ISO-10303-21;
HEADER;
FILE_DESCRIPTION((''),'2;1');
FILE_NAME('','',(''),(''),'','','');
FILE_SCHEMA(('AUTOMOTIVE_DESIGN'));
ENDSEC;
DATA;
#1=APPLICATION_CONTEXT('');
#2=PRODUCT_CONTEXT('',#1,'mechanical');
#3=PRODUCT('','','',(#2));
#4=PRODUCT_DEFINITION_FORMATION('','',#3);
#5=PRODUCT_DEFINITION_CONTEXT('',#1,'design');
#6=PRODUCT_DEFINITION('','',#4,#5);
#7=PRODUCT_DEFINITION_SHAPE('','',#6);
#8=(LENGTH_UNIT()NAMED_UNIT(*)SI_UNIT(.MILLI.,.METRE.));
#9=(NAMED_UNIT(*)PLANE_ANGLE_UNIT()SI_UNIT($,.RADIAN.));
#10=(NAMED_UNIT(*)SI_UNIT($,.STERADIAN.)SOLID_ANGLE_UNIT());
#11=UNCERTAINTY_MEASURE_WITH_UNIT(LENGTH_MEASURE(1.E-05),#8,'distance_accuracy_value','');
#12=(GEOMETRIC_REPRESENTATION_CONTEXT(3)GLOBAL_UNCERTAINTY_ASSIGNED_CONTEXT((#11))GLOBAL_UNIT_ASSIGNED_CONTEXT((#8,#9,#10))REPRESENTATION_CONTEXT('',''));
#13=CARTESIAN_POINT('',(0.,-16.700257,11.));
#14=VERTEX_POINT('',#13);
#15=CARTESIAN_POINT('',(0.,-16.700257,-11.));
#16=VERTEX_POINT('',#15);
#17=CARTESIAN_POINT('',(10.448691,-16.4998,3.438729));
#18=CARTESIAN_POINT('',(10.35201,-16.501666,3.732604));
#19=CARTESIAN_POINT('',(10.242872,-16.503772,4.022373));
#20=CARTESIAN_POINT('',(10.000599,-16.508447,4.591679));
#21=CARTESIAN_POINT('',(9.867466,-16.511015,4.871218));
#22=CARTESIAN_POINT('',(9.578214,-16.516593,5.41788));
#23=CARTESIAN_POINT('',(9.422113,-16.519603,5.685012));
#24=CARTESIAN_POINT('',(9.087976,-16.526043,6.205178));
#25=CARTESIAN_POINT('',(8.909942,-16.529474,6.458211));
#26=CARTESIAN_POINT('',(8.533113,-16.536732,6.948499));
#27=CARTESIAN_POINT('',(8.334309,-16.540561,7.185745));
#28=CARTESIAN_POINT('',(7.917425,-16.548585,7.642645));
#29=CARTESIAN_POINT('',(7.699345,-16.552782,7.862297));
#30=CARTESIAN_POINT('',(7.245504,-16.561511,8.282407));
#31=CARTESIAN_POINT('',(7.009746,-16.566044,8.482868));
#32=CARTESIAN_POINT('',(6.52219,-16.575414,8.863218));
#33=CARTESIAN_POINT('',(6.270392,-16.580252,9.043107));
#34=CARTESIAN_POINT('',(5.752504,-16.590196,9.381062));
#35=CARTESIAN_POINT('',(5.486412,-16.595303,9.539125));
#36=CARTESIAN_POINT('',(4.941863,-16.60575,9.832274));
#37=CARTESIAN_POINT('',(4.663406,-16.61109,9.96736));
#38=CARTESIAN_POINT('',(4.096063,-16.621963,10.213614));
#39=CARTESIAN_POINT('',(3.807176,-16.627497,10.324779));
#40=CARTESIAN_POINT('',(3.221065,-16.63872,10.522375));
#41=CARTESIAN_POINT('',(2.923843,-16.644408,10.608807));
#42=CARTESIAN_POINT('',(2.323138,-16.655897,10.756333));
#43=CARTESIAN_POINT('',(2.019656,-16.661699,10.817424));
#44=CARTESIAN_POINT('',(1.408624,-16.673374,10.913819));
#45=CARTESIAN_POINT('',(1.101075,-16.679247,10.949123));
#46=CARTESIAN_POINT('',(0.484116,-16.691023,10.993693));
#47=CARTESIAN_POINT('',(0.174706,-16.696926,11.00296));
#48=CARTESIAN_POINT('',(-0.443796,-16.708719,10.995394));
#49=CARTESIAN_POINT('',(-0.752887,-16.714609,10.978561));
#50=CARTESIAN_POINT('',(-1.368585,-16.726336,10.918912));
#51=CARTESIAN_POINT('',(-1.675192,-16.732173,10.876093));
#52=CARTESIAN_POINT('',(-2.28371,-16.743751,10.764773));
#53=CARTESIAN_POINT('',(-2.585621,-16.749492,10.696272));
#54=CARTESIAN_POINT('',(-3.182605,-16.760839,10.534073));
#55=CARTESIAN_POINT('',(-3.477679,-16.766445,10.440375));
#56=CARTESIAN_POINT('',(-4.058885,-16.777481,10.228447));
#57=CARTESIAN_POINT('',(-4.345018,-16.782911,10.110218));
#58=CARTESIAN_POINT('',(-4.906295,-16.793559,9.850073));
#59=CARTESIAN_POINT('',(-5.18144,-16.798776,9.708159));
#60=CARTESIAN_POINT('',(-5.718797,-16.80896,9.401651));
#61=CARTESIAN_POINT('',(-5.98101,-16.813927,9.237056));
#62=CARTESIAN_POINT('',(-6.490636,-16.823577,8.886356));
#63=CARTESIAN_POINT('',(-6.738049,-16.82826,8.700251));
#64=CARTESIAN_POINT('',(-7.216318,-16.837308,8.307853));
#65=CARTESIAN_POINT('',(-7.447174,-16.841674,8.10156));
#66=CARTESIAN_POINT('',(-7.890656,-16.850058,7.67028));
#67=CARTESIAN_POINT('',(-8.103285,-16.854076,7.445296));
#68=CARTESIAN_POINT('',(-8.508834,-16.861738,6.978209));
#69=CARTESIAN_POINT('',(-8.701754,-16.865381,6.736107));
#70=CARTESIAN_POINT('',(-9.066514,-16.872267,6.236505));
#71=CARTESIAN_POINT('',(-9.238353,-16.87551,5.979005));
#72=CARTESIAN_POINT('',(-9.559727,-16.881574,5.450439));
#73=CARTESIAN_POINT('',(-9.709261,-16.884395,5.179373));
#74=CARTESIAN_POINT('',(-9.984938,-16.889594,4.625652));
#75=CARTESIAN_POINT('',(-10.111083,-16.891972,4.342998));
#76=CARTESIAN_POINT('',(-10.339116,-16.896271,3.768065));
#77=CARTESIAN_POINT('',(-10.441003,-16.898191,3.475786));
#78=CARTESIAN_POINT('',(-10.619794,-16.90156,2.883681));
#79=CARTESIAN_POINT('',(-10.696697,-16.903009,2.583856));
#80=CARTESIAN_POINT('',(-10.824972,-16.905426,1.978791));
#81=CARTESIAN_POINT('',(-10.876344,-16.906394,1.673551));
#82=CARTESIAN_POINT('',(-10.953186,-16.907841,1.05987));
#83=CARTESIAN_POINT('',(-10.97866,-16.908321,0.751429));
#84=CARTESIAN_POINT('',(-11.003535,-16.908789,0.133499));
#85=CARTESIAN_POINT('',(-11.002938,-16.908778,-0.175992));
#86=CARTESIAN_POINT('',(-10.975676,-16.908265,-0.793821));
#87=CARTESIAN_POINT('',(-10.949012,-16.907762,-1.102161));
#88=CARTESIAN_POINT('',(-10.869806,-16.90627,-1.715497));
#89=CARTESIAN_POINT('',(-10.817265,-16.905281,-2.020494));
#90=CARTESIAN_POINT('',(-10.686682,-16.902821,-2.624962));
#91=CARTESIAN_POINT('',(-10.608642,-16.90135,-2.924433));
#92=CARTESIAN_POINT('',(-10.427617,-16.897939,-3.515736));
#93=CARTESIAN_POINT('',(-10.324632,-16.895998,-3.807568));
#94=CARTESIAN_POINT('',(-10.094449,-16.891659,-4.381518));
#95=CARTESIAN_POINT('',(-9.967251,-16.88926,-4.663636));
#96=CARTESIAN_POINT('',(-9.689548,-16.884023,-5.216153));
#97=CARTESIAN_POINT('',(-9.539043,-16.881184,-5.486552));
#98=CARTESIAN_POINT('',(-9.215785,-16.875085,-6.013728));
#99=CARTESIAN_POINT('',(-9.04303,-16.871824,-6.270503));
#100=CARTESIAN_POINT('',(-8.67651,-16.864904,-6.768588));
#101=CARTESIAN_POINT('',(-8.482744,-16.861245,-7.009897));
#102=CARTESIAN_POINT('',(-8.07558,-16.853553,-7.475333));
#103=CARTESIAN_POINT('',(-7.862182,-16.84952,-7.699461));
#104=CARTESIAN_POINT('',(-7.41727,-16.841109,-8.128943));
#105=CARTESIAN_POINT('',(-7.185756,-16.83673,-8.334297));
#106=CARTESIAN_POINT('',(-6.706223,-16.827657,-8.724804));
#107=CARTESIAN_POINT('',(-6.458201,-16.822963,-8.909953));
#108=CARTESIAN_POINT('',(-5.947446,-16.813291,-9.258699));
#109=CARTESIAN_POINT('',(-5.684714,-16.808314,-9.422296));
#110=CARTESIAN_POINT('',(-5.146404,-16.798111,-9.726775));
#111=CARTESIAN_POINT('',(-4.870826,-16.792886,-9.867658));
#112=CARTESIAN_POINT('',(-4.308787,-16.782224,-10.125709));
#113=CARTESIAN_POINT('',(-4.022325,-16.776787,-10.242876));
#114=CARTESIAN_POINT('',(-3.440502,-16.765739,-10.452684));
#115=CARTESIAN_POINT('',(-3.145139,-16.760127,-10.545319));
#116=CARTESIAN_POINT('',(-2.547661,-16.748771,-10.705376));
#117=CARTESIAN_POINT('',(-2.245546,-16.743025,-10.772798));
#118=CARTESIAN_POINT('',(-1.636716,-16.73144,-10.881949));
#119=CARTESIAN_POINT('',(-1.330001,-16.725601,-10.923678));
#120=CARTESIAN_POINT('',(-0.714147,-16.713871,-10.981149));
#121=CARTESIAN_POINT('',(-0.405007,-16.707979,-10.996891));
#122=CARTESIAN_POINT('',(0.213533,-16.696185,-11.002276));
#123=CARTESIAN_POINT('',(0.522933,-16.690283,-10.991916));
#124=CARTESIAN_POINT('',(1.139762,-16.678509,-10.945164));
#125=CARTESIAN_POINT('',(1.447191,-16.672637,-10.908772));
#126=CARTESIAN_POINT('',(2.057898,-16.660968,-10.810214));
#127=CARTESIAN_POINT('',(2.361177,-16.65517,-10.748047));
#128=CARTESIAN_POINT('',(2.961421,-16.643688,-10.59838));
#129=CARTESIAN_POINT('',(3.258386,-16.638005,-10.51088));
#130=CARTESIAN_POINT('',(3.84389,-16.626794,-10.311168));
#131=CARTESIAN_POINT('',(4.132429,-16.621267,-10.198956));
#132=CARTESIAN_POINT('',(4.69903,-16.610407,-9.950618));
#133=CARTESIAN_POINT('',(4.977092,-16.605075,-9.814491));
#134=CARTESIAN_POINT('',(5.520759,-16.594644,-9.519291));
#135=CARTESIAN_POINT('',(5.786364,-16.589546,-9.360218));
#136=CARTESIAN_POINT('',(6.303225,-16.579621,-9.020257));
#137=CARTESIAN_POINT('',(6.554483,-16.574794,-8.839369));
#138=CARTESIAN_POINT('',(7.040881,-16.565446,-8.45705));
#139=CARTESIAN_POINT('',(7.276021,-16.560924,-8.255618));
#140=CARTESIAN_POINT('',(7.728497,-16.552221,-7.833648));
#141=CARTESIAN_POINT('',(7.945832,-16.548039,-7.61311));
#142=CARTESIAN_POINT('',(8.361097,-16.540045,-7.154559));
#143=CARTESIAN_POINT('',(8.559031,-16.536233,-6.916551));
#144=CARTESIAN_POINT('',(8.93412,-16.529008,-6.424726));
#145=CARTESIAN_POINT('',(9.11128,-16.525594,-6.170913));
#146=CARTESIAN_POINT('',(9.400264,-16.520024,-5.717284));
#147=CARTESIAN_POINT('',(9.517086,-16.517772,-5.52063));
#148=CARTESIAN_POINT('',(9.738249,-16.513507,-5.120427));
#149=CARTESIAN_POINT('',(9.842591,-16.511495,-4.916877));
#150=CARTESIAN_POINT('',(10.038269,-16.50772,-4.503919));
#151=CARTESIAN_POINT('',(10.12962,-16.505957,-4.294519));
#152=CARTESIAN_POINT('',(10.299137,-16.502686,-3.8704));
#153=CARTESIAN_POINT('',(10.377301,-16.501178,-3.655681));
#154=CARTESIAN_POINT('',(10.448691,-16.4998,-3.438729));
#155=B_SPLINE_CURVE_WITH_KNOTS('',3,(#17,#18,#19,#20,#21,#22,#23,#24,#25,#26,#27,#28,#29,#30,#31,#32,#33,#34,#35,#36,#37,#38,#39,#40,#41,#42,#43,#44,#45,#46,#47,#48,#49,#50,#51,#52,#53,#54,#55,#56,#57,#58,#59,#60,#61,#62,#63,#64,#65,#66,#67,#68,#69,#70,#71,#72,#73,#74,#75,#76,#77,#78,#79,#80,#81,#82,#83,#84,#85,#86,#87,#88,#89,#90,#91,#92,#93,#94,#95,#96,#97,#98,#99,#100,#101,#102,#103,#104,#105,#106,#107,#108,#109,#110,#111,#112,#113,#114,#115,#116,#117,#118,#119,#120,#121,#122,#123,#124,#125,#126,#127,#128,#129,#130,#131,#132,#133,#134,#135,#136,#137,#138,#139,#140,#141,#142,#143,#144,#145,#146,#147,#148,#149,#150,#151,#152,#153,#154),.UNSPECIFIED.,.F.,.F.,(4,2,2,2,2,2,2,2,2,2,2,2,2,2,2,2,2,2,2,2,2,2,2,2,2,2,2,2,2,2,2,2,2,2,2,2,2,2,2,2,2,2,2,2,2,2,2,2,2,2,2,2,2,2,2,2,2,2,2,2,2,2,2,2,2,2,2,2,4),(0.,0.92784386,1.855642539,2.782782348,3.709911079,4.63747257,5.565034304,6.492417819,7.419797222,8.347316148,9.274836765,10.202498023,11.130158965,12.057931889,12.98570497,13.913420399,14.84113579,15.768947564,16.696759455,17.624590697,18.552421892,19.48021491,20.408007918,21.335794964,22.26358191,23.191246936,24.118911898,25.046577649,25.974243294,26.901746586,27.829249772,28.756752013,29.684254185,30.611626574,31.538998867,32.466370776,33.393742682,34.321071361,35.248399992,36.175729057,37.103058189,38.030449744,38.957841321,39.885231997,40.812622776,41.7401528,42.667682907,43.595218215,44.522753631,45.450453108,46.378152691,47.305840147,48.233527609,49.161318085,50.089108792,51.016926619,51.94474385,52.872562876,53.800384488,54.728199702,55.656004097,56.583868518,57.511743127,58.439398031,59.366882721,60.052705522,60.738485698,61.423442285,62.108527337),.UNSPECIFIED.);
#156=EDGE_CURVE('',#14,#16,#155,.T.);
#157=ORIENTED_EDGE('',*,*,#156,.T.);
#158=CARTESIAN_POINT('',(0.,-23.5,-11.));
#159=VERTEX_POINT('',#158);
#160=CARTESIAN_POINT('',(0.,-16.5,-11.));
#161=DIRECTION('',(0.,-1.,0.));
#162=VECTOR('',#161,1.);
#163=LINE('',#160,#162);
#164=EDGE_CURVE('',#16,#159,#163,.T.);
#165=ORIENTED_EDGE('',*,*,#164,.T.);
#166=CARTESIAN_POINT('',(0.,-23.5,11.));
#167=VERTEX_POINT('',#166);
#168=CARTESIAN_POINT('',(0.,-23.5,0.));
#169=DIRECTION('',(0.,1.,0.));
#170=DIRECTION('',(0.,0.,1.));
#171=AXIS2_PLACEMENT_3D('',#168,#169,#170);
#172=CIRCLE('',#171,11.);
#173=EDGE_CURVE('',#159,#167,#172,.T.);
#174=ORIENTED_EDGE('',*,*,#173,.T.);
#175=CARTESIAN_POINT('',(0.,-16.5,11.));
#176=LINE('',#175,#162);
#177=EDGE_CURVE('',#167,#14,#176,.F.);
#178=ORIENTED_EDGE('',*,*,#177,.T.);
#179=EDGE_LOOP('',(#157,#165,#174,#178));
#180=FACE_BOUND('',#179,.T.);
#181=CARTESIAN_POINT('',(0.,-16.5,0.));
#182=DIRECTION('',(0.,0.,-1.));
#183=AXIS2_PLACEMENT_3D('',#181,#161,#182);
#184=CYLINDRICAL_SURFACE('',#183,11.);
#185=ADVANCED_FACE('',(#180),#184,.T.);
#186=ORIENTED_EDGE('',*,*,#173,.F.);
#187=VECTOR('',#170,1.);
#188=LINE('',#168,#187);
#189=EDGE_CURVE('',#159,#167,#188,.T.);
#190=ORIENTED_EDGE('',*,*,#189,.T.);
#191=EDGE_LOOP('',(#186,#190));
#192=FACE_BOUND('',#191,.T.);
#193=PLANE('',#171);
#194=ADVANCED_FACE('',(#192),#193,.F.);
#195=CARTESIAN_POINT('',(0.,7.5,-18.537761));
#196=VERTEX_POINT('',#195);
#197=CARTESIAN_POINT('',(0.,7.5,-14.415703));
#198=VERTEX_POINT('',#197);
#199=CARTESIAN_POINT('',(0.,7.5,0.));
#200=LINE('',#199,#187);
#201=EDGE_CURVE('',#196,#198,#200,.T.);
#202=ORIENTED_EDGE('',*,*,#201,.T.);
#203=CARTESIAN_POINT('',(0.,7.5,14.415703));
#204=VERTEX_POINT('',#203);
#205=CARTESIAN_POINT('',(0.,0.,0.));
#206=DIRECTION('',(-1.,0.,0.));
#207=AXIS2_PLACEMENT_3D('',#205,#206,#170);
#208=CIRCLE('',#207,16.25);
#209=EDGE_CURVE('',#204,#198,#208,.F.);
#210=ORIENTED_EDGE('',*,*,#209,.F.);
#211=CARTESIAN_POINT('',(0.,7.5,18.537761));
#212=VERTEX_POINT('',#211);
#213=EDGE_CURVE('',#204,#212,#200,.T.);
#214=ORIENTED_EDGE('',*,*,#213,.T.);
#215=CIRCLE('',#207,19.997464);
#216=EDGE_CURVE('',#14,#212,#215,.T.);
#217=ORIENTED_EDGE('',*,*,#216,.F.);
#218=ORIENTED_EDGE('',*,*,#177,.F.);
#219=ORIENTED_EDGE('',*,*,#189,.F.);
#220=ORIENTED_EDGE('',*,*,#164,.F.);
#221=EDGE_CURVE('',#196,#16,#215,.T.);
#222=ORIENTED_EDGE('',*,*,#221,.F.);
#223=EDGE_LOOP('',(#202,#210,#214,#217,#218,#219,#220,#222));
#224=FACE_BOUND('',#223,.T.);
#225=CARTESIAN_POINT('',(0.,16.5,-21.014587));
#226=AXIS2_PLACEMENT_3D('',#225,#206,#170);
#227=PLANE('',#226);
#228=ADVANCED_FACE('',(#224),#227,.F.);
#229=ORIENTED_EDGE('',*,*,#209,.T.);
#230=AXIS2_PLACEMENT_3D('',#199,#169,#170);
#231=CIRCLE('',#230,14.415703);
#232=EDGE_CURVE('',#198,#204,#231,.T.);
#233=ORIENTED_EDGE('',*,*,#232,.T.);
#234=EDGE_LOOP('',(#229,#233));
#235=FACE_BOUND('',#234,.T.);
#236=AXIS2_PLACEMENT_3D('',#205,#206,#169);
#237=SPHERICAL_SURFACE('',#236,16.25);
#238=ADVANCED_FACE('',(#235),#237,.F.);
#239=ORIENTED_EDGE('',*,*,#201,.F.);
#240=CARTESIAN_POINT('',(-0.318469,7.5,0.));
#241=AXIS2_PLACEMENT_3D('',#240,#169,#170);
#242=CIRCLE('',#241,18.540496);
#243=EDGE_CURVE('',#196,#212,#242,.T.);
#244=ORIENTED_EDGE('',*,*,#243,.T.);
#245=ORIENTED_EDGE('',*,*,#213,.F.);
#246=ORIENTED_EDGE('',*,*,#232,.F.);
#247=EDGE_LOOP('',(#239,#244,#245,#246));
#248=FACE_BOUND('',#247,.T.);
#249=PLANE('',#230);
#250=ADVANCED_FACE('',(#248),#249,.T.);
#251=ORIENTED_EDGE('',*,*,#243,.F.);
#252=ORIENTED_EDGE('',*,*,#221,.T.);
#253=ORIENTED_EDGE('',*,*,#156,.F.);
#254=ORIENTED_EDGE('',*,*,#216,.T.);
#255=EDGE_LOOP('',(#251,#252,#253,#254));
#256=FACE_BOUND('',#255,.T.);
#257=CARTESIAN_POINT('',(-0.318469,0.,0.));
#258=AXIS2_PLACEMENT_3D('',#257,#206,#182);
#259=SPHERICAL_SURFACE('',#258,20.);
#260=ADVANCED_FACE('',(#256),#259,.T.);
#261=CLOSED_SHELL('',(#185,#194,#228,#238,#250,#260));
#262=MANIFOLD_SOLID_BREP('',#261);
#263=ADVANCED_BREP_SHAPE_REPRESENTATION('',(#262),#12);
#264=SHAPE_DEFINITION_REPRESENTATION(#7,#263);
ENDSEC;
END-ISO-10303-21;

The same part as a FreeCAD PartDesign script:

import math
import FreeCAD as App
import Part
import Sketcher


def add_polygon(sketch, points):
    """Adds a closed chain of lines whose ends are joined by coincident constraints."""
    first, n = sketch.GeometryCount, len(points)
    for a, b in zip(points, points[1:] + points[:1]):
        sketch.addGeometry(Part.LineSegment(App.Vector(*a, 0), App.Vector(*b, 0)), False)
    for i in range(n):
        sketch.addConstraint(Sketcher.Constraint("Coincident", first + i, 2, first + (i + 1) % n, 1))

doc = App.newDocument("Part")
body = doc.addObject("PartDesign::Body", "Body")

# Sketch on XZ plane
sketch1 = body.newObject("Sketcher::SketchObject", "Sketch")
sketch1.AttachmentSupport = (doc.getObject("XZ_Plane"), [""])
sketch1.MapMode = "FlatFace"
sketch1.addGeometry(Part.LineSegment(App.Vector(-20, 0, 0), App.Vector(20, 0, 0)), False)
sketch1.addGeometry(Part.ArcOfCircle(Part.Circle(App.Vector(0, 0, 0), App.Vector(0, 0, 1), 20), math.radians(180), math.radians(360)), False)
sketch1.addConstraint(Sketcher.Constraint("Coincident", 0, 1, 1, 1))
sketch1.addConstraint(Sketcher.Constraint("Coincident", 1, 2, 0, 2))
sketch1.addConstraint(Sketcher.Constraint("Horizontal", 0))
sketch1.addConstraint(Sketcher.Constraint("PointOnObject", 1, 3, -1))
sketch1.addConstraint(Sketcher.Constraint("PointOnObject", 0, 1, -1))
sketch1.addConstraint(Sketcher.Constraint("Radius", 1, 20.0))
sketch1.addConstraint(Sketcher.Constraint("DistanceX", 1, 3, -1, 1, 0.318469))
revolution = body.newObject("PartDesign::Revolution", "Revolution")
revolution.Profile = sketch1
revolution.ReferenceAxis = (sketch1, ["H_Axis"])
revolution.Angle = 360

# Sketch on XZ plane
sketch2 = body.newObject("Sketcher::SketchObject", "Sketch001")
sketch2.AttachmentSupport = (doc.getObject("XZ_Plane"), [""])
sketch2.MapMode = "FlatFace"
sketch2.AttachmentOffset = App.Placement(App.Vector(0, 0, -7.5), App.Rotation())
add_polygon(sketch2, [(-21, -21), (-21, 21), (21, 21), (21, -21)])  # lines 0-3
sketch2.addConstraint(Sketcher.Constraint("Vertical", 0))
sketch2.addConstraint(Sketcher.Constraint("Horizontal", 1))
sketch2.addConstraint(Sketcher.Constraint("Vertical", 2))
sketch2.addConstraint(Sketcher.Constraint("Horizontal", 3))
sketch2.addConstraint(Sketcher.Constraint("Symmetric", 0, 2, 2, 2, -1, 1))
sketch2.addConstraint(Sketcher.Constraint("Equal", 3, 0))
sketch2.addConstraint(Sketcher.Constraint("DistanceX", 1, 1, 1, 2, 42.0))
pocket1 = body.newObject("PartDesign::Pocket", "Pocket")
pocket1.Profile = sketch2
pocket1.Length = 20

# Sketch on XY plane
sketch3 = body.newObject("Sketcher::SketchObject", "Sketch002")
sketch3.AttachmentSupport = (doc.getObject("XY_Plane"), [""])
sketch3.MapMode = "FlatFace"
sketch3.addGeometry(Part.LineSegment(App.Vector(16, 0, 0), App.Vector(-16, 0, 0)), False)
sketch3.addGeometry(Part.ArcOfCircle(Part.Circle(App.Vector(0, 0, 0), App.Vector(0, 0, 1), 16), math.radians(180), math.radians(360)), False)
sketch3.addConstraint(Sketcher.Constraint("Coincident", 0, 1, 1, 2))
sketch3.addConstraint(Sketcher.Constraint("Coincident", 1, 1, 0, 2))
sketch3.addConstraint(Sketcher.Constraint("Horizontal", 0))
sketch3.addConstraint(Sketcher.Constraint("Coincident", 1, 3, -1, 1))
sketch3.addConstraint(Sketcher.Constraint("PointOnObject", 0, 1, -1))
sketch3.addConstraint(Sketcher.Constraint("Radius", 1, 16.25))
groove = body.newObject("PartDesign::Groove", "Groove")
groove.Profile = sketch3
groove.ReferenceAxis = (sketch3, ["H_Axis"])
groove.Angle = 360

# Sketch on XZ plane
sketch4 = body.newObject("Sketcher::SketchObject", "Sketch003")
sketch4.AttachmentSupport = (doc.getObject("XZ_Plane"), [""])
sketch4.MapMode = "FlatFace"
sketch4.AttachmentOffset = App.Placement(App.Vector(0, 0, 20), App.Rotation())
sketch4.addGeometry(Part.Circle(App.Vector(0, 0, 0), App.Vector(0, 0, 1), 11), False)
sketch4.addConstraint(Sketcher.Constraint("Coincident", 0, 3, -1, 1))
sketch4.addConstraint(Sketcher.Constraint("Diameter", 0, 22.0))
pad1 = body.newObject("PartDesign::Pad", "Pad")
pad1.Profile = sketch4
pad1.Length = 7
pad1.Midplane = True

# Sketch on XZ plane
sketch5 = body.newObject("Sketcher::SketchObject", "Sketch004")
sketch5.AttachmentSupport = (doc.getObject("XZ_Plane"), [""])
sketch5.MapMode = "FlatFace"
sketch5.AttachmentOffset = App.Placement(App.Vector(0, 0, 23.5), App.Rotation())
add_polygon(sketch5, [(0, 21), (0, -21), (38, -21), (38, 21)])  # lines 0-3
sketch5.addConstraint(Sketcher.Constraint("Vertical", 0))
sketch5.addConstraint(Sketcher.Constraint("Horizontal", 1))
sketch5.addConstraint(Sketcher.Constraint("Vertical", 2))
sketch5.addConstraint(Sketcher.Constraint("Horizontal", 3))
sketch5.addConstraint(Sketcher.Constraint("Symmetric", 0, 2, 3, 2, -1, 1))
sketch5.addConstraint(Sketcher.Constraint("DistanceX", 1, 1, 1, 2, 37.942079))
sketch5.addConstraint(Sketcher.Constraint("DistanceY", 0, 2, 0, 1, 42.029174))
pocket2 = body.newObject("PartDesign::Pocket", "Pocket001")
pocket2.Profile = sketch5
pocket2.Length = 40

doc.recompute()
